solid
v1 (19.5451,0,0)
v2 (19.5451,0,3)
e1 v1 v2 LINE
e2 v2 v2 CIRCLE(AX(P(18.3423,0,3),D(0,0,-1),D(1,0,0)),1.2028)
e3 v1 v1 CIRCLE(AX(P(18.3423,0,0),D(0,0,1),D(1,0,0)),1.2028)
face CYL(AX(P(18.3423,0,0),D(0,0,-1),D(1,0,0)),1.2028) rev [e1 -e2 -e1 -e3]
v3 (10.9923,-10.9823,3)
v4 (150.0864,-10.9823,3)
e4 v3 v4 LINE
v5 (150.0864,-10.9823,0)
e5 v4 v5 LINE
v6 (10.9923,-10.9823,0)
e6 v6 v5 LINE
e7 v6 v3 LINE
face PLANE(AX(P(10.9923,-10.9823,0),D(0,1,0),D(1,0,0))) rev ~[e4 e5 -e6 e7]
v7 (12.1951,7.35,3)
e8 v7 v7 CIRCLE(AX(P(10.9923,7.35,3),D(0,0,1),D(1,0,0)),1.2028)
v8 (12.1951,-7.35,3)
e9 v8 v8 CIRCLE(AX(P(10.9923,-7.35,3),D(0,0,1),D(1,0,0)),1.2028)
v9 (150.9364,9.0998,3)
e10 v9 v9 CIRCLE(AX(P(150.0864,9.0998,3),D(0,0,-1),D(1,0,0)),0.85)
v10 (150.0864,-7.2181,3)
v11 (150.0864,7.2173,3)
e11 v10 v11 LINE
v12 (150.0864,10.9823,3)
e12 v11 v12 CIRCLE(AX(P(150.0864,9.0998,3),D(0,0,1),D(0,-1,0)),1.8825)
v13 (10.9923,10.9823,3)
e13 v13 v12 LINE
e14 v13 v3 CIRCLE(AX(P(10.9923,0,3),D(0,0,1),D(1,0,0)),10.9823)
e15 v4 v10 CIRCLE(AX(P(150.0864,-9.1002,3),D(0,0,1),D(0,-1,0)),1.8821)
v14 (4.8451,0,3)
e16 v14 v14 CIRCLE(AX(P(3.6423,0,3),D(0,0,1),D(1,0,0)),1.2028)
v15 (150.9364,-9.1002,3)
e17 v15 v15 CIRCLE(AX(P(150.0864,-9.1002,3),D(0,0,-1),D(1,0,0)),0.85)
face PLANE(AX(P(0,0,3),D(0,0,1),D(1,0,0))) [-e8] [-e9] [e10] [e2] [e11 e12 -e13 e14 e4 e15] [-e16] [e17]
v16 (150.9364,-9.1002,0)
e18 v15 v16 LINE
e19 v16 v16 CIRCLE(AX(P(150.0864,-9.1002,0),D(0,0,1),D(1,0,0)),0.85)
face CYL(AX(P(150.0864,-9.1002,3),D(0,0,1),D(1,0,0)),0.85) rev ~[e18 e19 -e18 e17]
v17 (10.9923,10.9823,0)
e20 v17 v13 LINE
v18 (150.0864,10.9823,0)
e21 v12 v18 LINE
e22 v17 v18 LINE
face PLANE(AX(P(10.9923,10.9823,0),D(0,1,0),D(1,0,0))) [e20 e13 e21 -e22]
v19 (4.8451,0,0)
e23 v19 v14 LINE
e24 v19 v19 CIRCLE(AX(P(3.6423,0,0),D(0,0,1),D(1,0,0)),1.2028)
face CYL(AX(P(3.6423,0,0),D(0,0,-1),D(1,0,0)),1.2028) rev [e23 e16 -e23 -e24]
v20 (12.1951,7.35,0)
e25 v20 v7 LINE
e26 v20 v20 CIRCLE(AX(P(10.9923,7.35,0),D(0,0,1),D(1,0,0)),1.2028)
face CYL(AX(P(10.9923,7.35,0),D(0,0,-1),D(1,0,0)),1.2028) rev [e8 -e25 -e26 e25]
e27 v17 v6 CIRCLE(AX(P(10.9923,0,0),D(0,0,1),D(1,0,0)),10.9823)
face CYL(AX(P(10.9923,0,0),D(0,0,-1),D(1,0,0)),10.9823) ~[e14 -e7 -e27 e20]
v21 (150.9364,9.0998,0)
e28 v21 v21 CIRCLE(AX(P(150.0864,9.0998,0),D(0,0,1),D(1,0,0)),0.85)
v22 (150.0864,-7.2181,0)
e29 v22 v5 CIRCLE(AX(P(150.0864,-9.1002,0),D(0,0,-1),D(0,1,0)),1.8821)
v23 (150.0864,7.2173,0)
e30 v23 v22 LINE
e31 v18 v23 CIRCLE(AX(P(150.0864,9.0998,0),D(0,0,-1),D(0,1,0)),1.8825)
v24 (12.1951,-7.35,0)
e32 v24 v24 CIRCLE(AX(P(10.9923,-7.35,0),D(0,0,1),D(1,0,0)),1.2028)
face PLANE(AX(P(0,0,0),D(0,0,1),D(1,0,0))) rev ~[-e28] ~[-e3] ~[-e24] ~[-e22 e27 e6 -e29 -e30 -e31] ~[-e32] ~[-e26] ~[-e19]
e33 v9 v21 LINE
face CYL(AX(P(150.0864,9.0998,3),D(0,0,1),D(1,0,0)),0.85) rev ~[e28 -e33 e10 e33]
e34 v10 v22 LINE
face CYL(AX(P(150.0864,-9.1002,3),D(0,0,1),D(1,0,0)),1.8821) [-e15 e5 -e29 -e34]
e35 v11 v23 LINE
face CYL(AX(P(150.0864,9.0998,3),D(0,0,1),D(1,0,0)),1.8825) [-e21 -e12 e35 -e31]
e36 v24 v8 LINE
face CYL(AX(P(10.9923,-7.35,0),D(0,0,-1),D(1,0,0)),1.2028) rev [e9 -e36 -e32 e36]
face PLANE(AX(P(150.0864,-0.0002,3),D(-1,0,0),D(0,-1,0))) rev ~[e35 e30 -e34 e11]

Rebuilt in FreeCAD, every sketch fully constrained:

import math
import FreeCAD as App
import Part
import Sketcher
Q = App.Units.Quantity

doc = App.newDocument("Part")
body = doc.addObject("PartDesign::Body", "Body")

sketch1 = body.newObject("Sketcher::SketchObject", "Sketch")
sketch1.AttachmentSupport = (doc.getObject("XY_Plane"), [""])
sketch1.MapMode = "FlatFace"
sketch1.addGeometry([
    Part.ArcOfCircle(Part.Circle(App.Vector(11, 0, 0), App.Vector(0, 0, 1), 11), math.radians(90), math.radians(270)),
    Part.LineSegment(App.Vector(11, -11, 0), App.Vector(161, -11, 0)),
    Part.LineSegment(App.Vector(161, -11, 0), App.Vector(161, 11, 0)),
    Part.LineSegment(App.Vector(161, 11, 0), App.Vector(11, 11, 0)),
    Part.Circle(App.Vector(11, -7.3, 0), App.Vector(0, 0, 1), 1.2),
    Part.Circle(App.Vector(3.6, 0, 0), App.Vector(0, 0, 1), 1.2),
    Part.Circle(App.Vector(18.3, 0, 0), App.Vector(0, 0, 1), 1.2),
    Part.Circle(App.Vector(11, 7.3, 0), App.Vector(0, 0, 1), 1.2),
    Part.Circle(App.Vector(18.7, -9.5, 0), App.Vector(0, 0, 1), 1.1),
], False)
sketch1.addConstraint([
    Sketcher.Constraint("Tangent", 0, 2, 1, 1),
    Sketcher.Constraint("Coincident", 1, 2, 2, 1),
    Sketcher.Constraint("Coincident", 2, 2, 3, 1),
    Sketcher.Constraint("Tangent", 3, 2, 0, 1),
    Sketcher.Constraint("Horizontal", 1),
    Sketcher.Constraint("Vertical", 2),
    Sketcher.Constraint("Horizontal", 3),
    Sketcher.Constraint("Equal", 4, 5),
    Sketcher.Constraint("Equal", 5, 6),
    Sketcher.Constraint("Equal", 6, 7),
    Sketcher.Constraint("Symmetric", 4, 3, 7, 3, -1),
    Sketcher.Constraint("PointOnObject", 0, 3, -1),
    Sketcher.Constraint("PointOnObject", 5, 3, -1),
    Sketcher.Constraint("PointOnObject", 6, 3, -1),
    Sketcher.Constraint("Vertical", 0, 3, 4, 3),
    Sketcher.Constraint("DistanceX", 1, 1, 1, 2, Q("150 mm")),
    Sketcher.Constraint("Diameter", 8, Q("2.1 mm")),
    Sketcher.Constraint("Diameter", 4, Q("2.4056 mm")),
    Sketcher.Constraint("Radius", 0, Q("10.9823 mm")),
    Sketcher.Constraint("DistanceX", 5, 3, 6, 3, Q("14.7 mm")),
    Sketcher.Constraint("DistanceY", 4, 3, 7, 3, Q("14.7 mm")),
    Sketcher.Constraint("DistanceX", 5, 3, 0, 3, Q("7.35 mm")),
    Sketcher.Constraint("DistanceX", 4, 3, 8, 3, Q("7.723 mm")),
    Sketcher.Constraint("DistanceY", 8, 3, 2, 2, Q("20.494 mm")),
    Sketcher.Constraint("DistanceX", -1, 1, 0, 3, Q("10.9923 mm")),
])
pad1 = body.newObject("PartDesign::Pad", "Pad")
pad1.Profile = sketch1
pad1.Length = 3

sketch2 = body.newObject("Sketcher::SketchObject", "Sketch001")
sketch2.AttachmentSupport = (doc.getObject("XY_Plane"), [""])
sketch2.MapMode = "FlatFace"
sketch2.AttachmentOffset = App.Placement(App.Vector(0, 0, 3), App.Rotation())
sketch2.addGeometry([
    Part.LineSegment(App.Vector(150.1, 7.2, 0), App.Vector(150.1, -7.2, 0)),
    Part.ArcOfCircle(Part.Circle(App.Vector(150.1, -9.1, 0), App.Vector(0, 0, 1), 1.9), math.radians(-90), math.radians(90)),
    Part.LineSegment(App.Vector(150.1, -11, 0), App.Vector(161, -11, 0)),
    Part.LineSegment(App.Vector(161, -11, 0), App.Vector(161, 11, 0)),
    Part.LineSegment(App.Vector(161, 11, 0), App.Vector(150.1, 11, 0)),
    Part.ArcOfCircle(Part.Circle(App.Vector(150.1, 9.1, 0), App.Vector(0, 0, 1), 1.9), math.radians(-90), math.radians(90)),
    Part.Circle(App.Vector(150.1, -9.1, 0), App.Vector(0, 0, 1), 0.8),
    Part.Circle(App.Vector(150.1, 9.1, 0), App.Vector(0, 0, 1), 0.8),
], False)
sketch2.addConstraint([
    Sketcher.Constraint("Coincident", 0, 2, 1, 2),
    Sketcher.Constraint("Tangent", 1, 1, 2, 1),
    Sketcher.Constraint("Coincident", 2, 2, 3, 1),
    Sketcher.Constraint("Coincident", 3, 2, 4, 1),
    Sketcher.Constraint("Tangent", 4, 2, 5, 2),
    Sketcher.Constraint("Coincident", 5, 1, 0, 1),
    Sketcher.Constraint("Vertical", 0),
    Sketcher.Constraint("Horizontal", 2),
    Sketcher.Constraint("Vertical", 3),
    Sketcher.Constraint("Horizontal", 4),
    Sketcher.Constraint("Coincident", 6, 3, 1, 3),
    Sketcher.Constraint("Coincident", 7, 3, 5, 3),
    Sketcher.Constraint("Equal", 6, 7),
    Sketcher.Constraint("Symmetric", 1, 3, 5, 3, -1),
    Sketcher.Constraint("Vertical", 7, 3, 0, 2),
    Sketcher.Constraint("Diameter", 6, Q("1.7 mm")),
    Sketcher.Constraint("Radius", 1, Q("1.882 mm")),
    Sketcher.Constraint("DistanceY", 1, 3, -1, 1, Q("9.1002 mm")),
    Sketcher.Constraint("DistanceY", -1, 1, 3, 2, Q("10.9823 mm")),
    Sketcher.Constraint("DistanceX", 2, 1, 2, 2, Q("10.906 mm")),
    Sketcher.Constraint("DistanceX", -1, 1, 1, 3, Q("150.0864 mm")),
])
pocket1 = body.newObject("PartDesign::Pocket", "Pocket")
pocket1.Profile = sketch2
pocket1.Length = 3

sketch3 = body.newObject("Sketcher::SketchObject", "Sketch002")
sketch3.AttachmentSupport = (doc.getObject("XY_Plane"), [""])
sketch3.MapMode = "FlatFace"
sketch3.AttachmentOffset = App.Placement(App.Vector(0, 0, 3), App.Rotation())
sketch3.addGeometry(Part.Circle(App.Vector(18.7, -9.5, 0), App.Vector(0, 0, 1), 1.1), False)
sketch3.addConstraint([
    Sketcher.Constraint("Diameter", 0, Q("2.1 mm")),
    Sketcher.Constraint("DistanceX", -1, 1, 0, 3, Q("18.7153 mm")),
    Sketcher.Constraint("DistanceY", 0, 3, -1, 1, Q("9.5116 mm")),
])
pad2 = body.newObject("PartDesign::Pad", "Pad001")
pad2.Profile = sketch3
pad2.Length = 3
pad2.Reversed = True

doc.recompute()
